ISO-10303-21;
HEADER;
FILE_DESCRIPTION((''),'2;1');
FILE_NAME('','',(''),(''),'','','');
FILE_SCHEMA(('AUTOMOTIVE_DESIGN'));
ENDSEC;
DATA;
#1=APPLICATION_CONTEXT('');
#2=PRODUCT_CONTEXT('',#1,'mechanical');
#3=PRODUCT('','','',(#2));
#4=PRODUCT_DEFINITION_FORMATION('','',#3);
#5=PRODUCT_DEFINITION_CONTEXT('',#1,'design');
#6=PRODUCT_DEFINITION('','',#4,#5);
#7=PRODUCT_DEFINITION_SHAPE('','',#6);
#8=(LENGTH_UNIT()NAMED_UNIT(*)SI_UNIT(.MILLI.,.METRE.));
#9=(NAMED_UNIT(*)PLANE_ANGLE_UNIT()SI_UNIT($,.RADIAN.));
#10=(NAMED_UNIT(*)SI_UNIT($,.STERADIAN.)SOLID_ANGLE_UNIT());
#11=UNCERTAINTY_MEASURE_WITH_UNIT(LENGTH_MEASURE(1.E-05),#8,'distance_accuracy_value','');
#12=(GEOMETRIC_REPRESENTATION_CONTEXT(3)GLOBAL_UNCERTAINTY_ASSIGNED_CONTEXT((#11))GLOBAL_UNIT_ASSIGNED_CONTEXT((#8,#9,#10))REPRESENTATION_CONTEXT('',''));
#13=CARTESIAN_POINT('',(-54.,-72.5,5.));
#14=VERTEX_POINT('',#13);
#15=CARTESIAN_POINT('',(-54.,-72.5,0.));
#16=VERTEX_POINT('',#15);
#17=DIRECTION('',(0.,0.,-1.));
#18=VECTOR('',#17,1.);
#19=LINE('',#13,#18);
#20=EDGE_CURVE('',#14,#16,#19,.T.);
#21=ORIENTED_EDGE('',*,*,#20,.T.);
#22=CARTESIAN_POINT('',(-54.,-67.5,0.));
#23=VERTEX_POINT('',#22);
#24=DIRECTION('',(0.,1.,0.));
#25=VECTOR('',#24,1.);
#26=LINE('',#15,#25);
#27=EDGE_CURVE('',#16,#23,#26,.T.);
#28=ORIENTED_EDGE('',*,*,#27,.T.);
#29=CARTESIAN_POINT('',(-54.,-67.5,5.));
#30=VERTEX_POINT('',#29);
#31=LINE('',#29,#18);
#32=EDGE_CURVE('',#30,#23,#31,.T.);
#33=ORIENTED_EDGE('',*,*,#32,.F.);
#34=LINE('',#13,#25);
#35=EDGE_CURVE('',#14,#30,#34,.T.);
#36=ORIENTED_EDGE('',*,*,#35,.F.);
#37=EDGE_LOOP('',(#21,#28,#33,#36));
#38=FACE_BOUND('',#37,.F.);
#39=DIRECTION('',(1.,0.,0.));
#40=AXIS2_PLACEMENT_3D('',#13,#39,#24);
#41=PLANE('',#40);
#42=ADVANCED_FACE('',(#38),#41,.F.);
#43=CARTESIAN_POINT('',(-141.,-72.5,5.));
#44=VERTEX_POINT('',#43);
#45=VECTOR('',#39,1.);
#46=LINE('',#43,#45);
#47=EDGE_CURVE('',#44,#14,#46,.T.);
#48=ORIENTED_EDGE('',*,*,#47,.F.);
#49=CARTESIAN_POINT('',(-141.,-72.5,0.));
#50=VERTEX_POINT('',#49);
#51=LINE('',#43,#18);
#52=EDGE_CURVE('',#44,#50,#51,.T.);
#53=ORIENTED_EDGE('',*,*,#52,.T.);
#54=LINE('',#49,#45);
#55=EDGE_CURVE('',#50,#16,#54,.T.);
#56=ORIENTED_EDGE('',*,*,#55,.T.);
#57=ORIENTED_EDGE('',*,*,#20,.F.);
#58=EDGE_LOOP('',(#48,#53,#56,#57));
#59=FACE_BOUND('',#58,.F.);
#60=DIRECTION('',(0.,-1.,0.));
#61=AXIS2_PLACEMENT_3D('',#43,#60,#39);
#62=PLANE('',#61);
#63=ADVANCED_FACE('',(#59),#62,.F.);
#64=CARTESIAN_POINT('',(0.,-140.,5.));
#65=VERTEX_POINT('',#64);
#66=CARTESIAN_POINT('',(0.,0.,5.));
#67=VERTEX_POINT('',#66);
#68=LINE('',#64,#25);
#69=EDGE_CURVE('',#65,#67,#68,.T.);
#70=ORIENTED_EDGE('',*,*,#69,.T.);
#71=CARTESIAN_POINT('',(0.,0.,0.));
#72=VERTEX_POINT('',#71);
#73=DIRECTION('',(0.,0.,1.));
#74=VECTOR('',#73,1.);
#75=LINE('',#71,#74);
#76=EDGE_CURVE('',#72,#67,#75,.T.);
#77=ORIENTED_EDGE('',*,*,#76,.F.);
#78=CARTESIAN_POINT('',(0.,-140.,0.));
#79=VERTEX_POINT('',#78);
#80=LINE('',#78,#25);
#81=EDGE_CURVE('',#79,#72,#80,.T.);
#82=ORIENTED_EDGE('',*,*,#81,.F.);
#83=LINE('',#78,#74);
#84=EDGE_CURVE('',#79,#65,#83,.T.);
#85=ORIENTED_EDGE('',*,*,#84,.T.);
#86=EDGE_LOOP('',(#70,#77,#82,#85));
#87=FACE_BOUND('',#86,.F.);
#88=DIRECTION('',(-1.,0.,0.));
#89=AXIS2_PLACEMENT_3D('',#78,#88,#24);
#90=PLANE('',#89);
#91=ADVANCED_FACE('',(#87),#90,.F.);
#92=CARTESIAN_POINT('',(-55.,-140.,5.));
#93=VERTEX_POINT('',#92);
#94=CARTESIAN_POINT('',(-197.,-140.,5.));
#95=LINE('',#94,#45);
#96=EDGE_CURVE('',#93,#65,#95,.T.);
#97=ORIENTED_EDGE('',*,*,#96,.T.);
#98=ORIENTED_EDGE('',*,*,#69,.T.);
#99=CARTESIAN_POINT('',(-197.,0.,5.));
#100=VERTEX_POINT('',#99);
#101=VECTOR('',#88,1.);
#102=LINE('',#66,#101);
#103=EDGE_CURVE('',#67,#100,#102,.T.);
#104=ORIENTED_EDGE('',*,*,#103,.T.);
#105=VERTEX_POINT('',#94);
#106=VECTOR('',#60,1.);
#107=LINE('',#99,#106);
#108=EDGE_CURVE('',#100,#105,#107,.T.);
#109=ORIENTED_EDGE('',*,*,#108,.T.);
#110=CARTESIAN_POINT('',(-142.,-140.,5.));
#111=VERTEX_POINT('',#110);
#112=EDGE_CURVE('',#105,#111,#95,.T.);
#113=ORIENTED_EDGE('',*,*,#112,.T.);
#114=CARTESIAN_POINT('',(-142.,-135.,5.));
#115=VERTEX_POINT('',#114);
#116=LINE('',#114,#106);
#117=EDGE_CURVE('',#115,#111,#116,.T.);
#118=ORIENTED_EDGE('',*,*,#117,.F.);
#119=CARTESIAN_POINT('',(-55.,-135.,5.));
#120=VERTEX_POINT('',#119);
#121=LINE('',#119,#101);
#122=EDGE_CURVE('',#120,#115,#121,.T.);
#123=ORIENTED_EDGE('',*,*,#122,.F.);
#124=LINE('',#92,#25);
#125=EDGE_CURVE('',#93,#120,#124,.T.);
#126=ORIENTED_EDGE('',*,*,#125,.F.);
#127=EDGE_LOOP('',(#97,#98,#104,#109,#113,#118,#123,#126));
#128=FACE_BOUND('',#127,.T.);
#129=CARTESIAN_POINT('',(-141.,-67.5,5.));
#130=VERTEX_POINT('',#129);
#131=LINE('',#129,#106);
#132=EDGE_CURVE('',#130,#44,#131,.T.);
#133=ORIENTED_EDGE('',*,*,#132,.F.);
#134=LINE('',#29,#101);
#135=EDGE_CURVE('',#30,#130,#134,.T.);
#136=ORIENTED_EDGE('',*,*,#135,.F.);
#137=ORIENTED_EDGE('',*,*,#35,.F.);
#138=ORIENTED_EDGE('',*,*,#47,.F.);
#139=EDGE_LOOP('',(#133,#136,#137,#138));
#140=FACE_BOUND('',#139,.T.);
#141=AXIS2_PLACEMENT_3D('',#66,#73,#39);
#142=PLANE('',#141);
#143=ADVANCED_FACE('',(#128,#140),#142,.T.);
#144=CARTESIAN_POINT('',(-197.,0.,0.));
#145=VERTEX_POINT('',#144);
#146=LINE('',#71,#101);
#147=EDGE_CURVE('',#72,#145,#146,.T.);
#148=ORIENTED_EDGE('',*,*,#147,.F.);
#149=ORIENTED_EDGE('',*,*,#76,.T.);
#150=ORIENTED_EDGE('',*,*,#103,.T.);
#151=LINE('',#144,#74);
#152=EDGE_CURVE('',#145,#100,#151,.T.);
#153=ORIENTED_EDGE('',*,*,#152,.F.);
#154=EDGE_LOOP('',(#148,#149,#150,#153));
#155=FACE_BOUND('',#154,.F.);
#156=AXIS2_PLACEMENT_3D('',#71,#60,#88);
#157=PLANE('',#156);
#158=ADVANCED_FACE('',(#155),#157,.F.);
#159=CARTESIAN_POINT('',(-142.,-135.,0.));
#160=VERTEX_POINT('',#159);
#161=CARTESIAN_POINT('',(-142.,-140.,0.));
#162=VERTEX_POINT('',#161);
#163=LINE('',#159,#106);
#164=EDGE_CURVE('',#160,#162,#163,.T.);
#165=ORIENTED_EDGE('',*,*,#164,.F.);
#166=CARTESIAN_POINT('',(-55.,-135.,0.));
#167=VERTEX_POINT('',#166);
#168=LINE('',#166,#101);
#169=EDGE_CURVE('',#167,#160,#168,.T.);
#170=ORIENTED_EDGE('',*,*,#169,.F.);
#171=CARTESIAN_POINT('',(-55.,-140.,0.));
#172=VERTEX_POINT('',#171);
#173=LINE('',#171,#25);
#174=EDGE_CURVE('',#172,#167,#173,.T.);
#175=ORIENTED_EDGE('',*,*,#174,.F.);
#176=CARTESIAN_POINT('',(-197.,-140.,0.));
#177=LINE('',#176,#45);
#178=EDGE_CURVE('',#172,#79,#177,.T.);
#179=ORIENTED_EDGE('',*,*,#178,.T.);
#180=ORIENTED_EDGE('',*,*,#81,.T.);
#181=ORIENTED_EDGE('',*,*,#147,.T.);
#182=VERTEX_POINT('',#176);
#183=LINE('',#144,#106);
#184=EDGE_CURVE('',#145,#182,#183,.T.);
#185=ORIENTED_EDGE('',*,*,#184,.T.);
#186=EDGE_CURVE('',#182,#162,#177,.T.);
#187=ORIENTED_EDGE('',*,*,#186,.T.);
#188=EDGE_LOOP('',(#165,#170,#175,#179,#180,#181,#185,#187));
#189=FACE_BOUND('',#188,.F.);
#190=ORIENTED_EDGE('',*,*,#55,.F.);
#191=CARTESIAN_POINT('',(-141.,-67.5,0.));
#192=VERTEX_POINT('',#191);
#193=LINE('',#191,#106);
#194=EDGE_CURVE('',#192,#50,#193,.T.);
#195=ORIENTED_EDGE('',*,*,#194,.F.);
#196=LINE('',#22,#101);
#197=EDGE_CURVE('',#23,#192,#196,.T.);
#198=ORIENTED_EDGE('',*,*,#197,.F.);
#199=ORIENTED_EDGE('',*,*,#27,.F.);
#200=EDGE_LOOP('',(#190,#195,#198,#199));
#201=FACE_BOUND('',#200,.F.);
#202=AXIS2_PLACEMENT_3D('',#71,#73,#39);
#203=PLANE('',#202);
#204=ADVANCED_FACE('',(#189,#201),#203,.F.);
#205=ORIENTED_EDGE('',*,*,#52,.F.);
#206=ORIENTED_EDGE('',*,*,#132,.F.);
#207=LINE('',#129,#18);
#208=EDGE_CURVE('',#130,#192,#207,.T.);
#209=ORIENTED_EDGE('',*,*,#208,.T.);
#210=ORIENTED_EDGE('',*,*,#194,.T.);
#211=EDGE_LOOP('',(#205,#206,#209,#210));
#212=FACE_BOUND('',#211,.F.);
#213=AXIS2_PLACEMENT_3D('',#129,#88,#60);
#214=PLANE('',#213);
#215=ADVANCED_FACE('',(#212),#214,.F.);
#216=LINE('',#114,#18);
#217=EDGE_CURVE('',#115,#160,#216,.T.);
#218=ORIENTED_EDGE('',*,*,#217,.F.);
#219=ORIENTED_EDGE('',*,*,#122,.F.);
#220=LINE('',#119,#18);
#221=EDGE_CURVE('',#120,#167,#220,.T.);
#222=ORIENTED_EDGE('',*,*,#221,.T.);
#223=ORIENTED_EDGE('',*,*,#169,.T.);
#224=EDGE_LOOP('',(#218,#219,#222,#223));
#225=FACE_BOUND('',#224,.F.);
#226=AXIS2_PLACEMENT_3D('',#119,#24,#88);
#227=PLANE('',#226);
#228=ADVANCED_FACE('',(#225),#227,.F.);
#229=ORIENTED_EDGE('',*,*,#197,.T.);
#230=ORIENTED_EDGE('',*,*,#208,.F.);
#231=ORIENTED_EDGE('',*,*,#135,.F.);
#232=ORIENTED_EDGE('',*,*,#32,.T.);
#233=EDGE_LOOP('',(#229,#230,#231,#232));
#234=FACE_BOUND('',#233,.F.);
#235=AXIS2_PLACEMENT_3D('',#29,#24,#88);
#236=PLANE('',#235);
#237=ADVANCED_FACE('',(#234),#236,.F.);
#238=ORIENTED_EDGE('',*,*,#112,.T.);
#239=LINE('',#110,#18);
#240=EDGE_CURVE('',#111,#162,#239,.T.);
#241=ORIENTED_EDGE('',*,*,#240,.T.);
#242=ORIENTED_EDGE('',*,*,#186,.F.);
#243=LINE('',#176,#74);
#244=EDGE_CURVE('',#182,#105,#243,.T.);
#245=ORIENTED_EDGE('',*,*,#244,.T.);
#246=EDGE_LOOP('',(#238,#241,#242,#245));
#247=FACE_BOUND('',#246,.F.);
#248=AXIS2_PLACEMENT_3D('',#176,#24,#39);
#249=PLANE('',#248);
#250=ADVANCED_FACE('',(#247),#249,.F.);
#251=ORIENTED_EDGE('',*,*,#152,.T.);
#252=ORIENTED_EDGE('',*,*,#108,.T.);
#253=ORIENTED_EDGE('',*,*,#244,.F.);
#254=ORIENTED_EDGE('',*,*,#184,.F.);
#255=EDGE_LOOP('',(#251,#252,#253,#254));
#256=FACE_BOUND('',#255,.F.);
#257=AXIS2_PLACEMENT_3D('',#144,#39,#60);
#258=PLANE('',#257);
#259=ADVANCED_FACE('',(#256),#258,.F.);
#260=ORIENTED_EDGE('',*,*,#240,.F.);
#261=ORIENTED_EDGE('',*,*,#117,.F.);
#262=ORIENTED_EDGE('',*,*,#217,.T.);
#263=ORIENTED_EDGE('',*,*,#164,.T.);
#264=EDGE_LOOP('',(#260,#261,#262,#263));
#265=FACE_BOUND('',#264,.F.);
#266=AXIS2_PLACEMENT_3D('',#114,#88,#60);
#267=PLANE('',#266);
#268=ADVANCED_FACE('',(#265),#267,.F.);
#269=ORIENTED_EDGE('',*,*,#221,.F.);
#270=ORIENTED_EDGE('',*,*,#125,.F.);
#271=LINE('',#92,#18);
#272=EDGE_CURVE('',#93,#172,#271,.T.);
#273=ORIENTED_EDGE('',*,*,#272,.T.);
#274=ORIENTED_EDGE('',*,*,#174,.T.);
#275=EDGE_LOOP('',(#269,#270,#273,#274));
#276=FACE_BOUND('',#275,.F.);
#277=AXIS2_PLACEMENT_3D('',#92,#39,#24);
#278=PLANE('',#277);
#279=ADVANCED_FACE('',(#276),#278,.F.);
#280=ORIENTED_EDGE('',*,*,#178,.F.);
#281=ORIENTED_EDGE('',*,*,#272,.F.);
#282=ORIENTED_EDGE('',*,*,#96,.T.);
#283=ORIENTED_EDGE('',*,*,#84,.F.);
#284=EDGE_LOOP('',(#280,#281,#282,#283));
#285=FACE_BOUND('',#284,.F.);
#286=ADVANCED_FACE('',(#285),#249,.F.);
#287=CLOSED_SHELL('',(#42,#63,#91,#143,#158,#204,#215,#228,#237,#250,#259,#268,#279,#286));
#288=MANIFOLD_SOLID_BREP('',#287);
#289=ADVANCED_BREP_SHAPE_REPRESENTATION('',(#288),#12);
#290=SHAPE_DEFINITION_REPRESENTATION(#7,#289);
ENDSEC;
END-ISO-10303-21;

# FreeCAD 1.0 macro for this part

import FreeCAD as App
import Part
import Sketcher
from FreeCAD import Vector


def add_polygon(sketch, points):
    """Adds a closed chain of lines whose ends are joined by coincident constraints."""
    first, n = sketch.GeometryCount, len(points)
    for a, b in zip(points, points[1:] + points[:1]):
        sketch.addGeometry(Part.LineSegment(App.Vector(*a, 0), App.Vector(*b, 0)), False)
    for i in range(n):
        sketch.addConstraint(Sketcher.Constraint("Coincident", first + i, 2, first + (i + 1) % n, 1))

doc = App.newDocument("Part")
body = doc.addObject("PartDesign::Body", "Body")

# Sketch on XY plane
sketch1 = doc.addObject("Sketcher::SketchObject", "Sketch")
body.addObject(sketch1)
sketch1.AttachmentSupport = (doc.XY_Plane, [""])
sketch1.MapMode = "FlatFace"
add_polygon(sketch1, [(0, -140), (0, 0), (-197, 0), (-197, -140)])  # lines 0-3
sketch1.addConstraint(Sketcher.Constraint("Vertical", 0))
sketch1.addConstraint(Sketcher.Constraint("Horizontal", 1))
sketch1.addConstraint(Sketcher.Constraint("Vertical", 2))
sketch1.addConstraint(Sketcher.Constraint("Horizontal", 3))
sketch1.addConstraint(Sketcher.Constraint("Coincident", 0, 2, -1, 1))
sketch1.addConstraint(Sketcher.Constraint("DistanceX", 1, 2, 1, 1, 197.0))
sketch1.addConstraint(Sketcher.Constraint("DistanceY", 0, 1, 0, 2, 140.0))
pad1 = doc.addObject("PartDesign::Pad", "Pad")
body.addObject(pad1)
pad1.Profile = sketch1
pad1.Length = 5

# Sketch on XY plane
sketch2 = doc.addObject("Sketcher::SketchObject", "Sketch001")
body.addObject(sketch2)
sketch2.AttachmentSupport = (doc.XY_Plane, [""])
sketch2.MapMode = "FlatFace"
sketch2.AttachmentOffset = App.Placement(Vector(0, 0, 5), App.Rotation())
add_polygon(sketch2, [(-142, -140), (-55, -140), (-55, -135), (-142, -135)])  # lines 0-3
add_polygon(sketch2, [(-141, -68), (-141, -72), (-54, -72), (-54, -68)])  # lines 4-7
sketch2.addConstraint(Sketcher.Constraint("Horizontal", 0))
sketch2.addConstraint(Sketcher.Constraint("Vertical", 1))
sketch2.addConstraint(Sketcher.Constraint("Horizontal", 2))
sketch2.addConstraint(Sketcher.Constraint("Vertical", 3))
sketch2.addConstraint(Sketcher.Constraint("Vertical", 4))
sketch2.addConstraint(Sketcher.Constraint("Horizontal", 5))
sketch2.addConstraint(Sketcher.Constraint("Vertical", 6))
sketch2.addConstraint(Sketcher.Constraint("Horizontal", 7))
sketch2.addConstraint(Sketcher.Constraint("Equal", 2, 5))
sketch2.addConstraint(Sketcher.Constraint("Equal", 3, 4))
sketch2.addConstraint(Sketcher.Constraint("DistanceY", 1, 1, 1, 2, 5.0))
sketch2.addConstraint(Sketcher.Constraint("DistanceX", 0, 2, -1, 1, 55.0))
sketch2.addConstraint(Sketcher.Constraint("DistanceY", 4, 2, -1, 1, 72.5))
sketch2.addConstraint(Sketcher.Constraint("DistanceY", 0, 2, 6, 2, 72.5))
sketch2.addConstraint(Sketcher.Constraint("DistanceX", 0, 1, 0, 2, 87.0))
sketch2.addConstraint(Sketcher.Constraint("DistanceX", 4, 2, -1, 1, 141.0))
pocket1 = doc.addObject("PartDesign::Pocket", "Pocket")
body.addObject(pocket1)
pocket1.Profile = sketch2
pocket1.Length = 5

doc.recompute()
